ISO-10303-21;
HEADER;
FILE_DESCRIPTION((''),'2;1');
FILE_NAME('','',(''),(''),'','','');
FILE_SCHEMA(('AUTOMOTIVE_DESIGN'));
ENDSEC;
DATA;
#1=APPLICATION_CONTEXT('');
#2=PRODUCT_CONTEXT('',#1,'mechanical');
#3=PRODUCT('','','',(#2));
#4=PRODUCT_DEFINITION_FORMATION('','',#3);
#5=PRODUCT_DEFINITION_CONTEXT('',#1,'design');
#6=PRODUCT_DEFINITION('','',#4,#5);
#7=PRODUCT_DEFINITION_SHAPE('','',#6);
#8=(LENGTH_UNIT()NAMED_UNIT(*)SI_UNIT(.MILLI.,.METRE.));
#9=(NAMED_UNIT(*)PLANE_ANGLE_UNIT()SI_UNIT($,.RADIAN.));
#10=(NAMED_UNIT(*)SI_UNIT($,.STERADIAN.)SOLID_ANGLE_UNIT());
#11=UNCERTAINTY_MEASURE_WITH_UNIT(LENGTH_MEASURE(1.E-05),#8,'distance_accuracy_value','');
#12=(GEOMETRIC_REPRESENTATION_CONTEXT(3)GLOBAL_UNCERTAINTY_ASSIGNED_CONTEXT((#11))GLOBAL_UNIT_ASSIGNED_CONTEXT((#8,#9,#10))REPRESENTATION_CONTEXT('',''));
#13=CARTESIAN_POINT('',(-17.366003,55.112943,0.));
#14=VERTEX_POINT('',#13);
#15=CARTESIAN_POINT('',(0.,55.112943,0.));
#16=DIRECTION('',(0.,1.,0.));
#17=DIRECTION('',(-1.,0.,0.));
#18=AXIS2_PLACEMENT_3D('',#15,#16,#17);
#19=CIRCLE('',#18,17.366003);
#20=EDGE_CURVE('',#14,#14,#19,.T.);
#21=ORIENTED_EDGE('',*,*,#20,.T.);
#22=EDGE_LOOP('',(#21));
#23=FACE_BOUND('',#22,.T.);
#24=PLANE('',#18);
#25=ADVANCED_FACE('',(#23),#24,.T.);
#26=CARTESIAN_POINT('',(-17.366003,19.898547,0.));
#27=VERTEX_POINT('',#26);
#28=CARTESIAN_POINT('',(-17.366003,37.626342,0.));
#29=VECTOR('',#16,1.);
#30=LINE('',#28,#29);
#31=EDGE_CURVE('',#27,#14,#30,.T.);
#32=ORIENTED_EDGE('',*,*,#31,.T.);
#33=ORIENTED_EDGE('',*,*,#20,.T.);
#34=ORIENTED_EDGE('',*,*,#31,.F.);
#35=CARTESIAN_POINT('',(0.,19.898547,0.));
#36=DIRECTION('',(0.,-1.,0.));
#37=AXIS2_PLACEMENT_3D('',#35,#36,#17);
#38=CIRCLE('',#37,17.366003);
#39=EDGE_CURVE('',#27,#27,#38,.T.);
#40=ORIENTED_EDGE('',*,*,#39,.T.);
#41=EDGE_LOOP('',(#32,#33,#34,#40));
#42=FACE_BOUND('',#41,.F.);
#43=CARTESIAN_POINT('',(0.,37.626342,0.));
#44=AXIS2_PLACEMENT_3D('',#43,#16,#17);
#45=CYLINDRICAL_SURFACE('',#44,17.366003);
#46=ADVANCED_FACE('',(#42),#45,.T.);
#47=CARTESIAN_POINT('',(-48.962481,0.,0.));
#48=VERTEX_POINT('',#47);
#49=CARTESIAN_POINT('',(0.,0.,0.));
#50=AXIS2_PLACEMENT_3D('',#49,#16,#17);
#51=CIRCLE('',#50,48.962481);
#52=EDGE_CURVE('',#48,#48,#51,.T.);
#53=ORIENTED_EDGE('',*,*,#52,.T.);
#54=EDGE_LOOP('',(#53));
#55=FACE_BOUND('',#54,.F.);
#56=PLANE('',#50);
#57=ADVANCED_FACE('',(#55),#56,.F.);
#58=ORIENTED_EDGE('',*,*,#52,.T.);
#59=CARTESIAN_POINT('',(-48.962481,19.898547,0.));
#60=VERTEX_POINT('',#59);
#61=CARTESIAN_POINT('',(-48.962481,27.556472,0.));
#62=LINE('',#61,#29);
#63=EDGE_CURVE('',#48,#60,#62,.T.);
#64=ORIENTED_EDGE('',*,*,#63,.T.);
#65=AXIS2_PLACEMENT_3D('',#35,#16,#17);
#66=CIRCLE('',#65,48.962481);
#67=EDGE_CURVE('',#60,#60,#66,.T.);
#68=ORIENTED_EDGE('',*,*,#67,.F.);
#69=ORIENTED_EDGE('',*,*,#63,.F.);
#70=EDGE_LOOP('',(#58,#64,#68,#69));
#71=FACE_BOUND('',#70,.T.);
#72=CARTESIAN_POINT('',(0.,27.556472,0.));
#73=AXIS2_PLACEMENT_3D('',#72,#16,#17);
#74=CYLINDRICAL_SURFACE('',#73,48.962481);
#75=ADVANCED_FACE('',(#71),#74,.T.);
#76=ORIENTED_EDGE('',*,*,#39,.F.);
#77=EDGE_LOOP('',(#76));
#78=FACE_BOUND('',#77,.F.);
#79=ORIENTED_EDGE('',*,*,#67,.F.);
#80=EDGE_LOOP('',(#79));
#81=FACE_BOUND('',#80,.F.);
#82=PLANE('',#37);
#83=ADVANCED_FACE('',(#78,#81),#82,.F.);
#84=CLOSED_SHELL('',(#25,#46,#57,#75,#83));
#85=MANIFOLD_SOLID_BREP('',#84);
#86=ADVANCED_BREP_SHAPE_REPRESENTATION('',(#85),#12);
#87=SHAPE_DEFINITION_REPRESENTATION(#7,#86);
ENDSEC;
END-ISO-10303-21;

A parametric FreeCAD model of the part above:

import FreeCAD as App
import Part
import Sketcher
Q = App.Units.Quantity


def add_polygon(sketch, points):
    """Adds a closed chain of lines whose ends are joined by coincident constraints."""
    first, n = sketch.GeometryCount, len(points)
    for a, b in zip(points, points[1:] + points[:1]):
        sketch.addGeometry(Part.LineSegment(App.Vector(*a, 0), App.Vector(*b, 0)), False)
    for i in range(n):
        sketch.addConstraint(Sketcher.Constraint("Coincident", first + i, 2, first + (i + 1) % n, 1))

doc = App.newDocument("Part")
body = doc.addObject("PartDesign::Body", "Body")

# Sketch on XY plane
sketch1 = body.newObject("Sketcher::SketchObject", "Sketch")
sketch1.AttachmentSupport = (doc.getObject("XY_Plane"), [""])
sketch1.MapMode = "FlatFace"
add_polygon(sketch1, [(-49, 55), (-49, 0), (0, 0), (0, 55)])  # lines 0-3
sketch1.addConstraint(Sketcher.Constraint("Vertical", 0))
sketch1.addConstraint(Sketcher.Constraint("Horizontal", 1))
sketch1.addConstraint(Sketcher.Constraint("Vertical", 2))
sketch1.addConstraint(Sketcher.Constraint("Horizontal", 3))
sketch1.addConstraint(Sketcher.Constraint("Coincident", 1, 2, -1, 1))
sketch1.addConstraint(Sketcher.Constraint("DistanceX", 1, 1, 1, 2, Q("48.962481 mm")))
sketch1.addConstraint(Sketcher.Constraint("DistanceY", 0, 2, 0, 1, Q("55.112943 mm")))
revolution = body.newObject("PartDesign::Revolution", "Revolution")
revolution.Profile = sketch1
revolution.ReferenceAxis = (sketch1, ["V_Axis"])
revolution.Angle = 360

# Sketch on XY plane
sketch2 = body.newObject("Sketcher::SketchObject", "Sketch001")
sketch2.AttachmentSupport = (doc.getObject("XY_Plane"), [""])
sketch2.MapMode = "FlatFace"
add_polygon(sketch2, [(-50, 55), (-50, 20), (-17, 20), (-17, 55)])  # lines 0-3
sketch2.addConstraint(Sketcher.Constraint("Vertical", 0))
sketch2.addConstraint(Sketcher.Constraint("Horizontal", 1))
sketch2.addConstraint(Sketcher.Constraint("Vertical", 2))
sketch2.addConstraint(Sketcher.Constraint("Horizontal", 3))
sketch2.addConstraint(Sketcher.Constraint("DistanceY", 0, 2, 0, 1, Q("35.45559 mm")))
sketch2.addConstraint(Sketcher.Constraint("DistanceX", 1, 1, 1, 2, Q("32.320064 mm")))
sketch2.addConstraint(Sketcher.Constraint("DistanceX", 0, 2, -1, 1, Q("49.686067 mm")))
sketch2.addConstraint(Sketcher.Constraint("DistanceY", -1, 1, 0, 2, Q("19.898547 mm")))
groove = body.newObject("PartDesign::Groove", "Groove")
groove.Profile = sketch2
groove.ReferenceAxis = (sketch2, ["V_Axis"])
groove.Angle = 360

doc.recompute()
